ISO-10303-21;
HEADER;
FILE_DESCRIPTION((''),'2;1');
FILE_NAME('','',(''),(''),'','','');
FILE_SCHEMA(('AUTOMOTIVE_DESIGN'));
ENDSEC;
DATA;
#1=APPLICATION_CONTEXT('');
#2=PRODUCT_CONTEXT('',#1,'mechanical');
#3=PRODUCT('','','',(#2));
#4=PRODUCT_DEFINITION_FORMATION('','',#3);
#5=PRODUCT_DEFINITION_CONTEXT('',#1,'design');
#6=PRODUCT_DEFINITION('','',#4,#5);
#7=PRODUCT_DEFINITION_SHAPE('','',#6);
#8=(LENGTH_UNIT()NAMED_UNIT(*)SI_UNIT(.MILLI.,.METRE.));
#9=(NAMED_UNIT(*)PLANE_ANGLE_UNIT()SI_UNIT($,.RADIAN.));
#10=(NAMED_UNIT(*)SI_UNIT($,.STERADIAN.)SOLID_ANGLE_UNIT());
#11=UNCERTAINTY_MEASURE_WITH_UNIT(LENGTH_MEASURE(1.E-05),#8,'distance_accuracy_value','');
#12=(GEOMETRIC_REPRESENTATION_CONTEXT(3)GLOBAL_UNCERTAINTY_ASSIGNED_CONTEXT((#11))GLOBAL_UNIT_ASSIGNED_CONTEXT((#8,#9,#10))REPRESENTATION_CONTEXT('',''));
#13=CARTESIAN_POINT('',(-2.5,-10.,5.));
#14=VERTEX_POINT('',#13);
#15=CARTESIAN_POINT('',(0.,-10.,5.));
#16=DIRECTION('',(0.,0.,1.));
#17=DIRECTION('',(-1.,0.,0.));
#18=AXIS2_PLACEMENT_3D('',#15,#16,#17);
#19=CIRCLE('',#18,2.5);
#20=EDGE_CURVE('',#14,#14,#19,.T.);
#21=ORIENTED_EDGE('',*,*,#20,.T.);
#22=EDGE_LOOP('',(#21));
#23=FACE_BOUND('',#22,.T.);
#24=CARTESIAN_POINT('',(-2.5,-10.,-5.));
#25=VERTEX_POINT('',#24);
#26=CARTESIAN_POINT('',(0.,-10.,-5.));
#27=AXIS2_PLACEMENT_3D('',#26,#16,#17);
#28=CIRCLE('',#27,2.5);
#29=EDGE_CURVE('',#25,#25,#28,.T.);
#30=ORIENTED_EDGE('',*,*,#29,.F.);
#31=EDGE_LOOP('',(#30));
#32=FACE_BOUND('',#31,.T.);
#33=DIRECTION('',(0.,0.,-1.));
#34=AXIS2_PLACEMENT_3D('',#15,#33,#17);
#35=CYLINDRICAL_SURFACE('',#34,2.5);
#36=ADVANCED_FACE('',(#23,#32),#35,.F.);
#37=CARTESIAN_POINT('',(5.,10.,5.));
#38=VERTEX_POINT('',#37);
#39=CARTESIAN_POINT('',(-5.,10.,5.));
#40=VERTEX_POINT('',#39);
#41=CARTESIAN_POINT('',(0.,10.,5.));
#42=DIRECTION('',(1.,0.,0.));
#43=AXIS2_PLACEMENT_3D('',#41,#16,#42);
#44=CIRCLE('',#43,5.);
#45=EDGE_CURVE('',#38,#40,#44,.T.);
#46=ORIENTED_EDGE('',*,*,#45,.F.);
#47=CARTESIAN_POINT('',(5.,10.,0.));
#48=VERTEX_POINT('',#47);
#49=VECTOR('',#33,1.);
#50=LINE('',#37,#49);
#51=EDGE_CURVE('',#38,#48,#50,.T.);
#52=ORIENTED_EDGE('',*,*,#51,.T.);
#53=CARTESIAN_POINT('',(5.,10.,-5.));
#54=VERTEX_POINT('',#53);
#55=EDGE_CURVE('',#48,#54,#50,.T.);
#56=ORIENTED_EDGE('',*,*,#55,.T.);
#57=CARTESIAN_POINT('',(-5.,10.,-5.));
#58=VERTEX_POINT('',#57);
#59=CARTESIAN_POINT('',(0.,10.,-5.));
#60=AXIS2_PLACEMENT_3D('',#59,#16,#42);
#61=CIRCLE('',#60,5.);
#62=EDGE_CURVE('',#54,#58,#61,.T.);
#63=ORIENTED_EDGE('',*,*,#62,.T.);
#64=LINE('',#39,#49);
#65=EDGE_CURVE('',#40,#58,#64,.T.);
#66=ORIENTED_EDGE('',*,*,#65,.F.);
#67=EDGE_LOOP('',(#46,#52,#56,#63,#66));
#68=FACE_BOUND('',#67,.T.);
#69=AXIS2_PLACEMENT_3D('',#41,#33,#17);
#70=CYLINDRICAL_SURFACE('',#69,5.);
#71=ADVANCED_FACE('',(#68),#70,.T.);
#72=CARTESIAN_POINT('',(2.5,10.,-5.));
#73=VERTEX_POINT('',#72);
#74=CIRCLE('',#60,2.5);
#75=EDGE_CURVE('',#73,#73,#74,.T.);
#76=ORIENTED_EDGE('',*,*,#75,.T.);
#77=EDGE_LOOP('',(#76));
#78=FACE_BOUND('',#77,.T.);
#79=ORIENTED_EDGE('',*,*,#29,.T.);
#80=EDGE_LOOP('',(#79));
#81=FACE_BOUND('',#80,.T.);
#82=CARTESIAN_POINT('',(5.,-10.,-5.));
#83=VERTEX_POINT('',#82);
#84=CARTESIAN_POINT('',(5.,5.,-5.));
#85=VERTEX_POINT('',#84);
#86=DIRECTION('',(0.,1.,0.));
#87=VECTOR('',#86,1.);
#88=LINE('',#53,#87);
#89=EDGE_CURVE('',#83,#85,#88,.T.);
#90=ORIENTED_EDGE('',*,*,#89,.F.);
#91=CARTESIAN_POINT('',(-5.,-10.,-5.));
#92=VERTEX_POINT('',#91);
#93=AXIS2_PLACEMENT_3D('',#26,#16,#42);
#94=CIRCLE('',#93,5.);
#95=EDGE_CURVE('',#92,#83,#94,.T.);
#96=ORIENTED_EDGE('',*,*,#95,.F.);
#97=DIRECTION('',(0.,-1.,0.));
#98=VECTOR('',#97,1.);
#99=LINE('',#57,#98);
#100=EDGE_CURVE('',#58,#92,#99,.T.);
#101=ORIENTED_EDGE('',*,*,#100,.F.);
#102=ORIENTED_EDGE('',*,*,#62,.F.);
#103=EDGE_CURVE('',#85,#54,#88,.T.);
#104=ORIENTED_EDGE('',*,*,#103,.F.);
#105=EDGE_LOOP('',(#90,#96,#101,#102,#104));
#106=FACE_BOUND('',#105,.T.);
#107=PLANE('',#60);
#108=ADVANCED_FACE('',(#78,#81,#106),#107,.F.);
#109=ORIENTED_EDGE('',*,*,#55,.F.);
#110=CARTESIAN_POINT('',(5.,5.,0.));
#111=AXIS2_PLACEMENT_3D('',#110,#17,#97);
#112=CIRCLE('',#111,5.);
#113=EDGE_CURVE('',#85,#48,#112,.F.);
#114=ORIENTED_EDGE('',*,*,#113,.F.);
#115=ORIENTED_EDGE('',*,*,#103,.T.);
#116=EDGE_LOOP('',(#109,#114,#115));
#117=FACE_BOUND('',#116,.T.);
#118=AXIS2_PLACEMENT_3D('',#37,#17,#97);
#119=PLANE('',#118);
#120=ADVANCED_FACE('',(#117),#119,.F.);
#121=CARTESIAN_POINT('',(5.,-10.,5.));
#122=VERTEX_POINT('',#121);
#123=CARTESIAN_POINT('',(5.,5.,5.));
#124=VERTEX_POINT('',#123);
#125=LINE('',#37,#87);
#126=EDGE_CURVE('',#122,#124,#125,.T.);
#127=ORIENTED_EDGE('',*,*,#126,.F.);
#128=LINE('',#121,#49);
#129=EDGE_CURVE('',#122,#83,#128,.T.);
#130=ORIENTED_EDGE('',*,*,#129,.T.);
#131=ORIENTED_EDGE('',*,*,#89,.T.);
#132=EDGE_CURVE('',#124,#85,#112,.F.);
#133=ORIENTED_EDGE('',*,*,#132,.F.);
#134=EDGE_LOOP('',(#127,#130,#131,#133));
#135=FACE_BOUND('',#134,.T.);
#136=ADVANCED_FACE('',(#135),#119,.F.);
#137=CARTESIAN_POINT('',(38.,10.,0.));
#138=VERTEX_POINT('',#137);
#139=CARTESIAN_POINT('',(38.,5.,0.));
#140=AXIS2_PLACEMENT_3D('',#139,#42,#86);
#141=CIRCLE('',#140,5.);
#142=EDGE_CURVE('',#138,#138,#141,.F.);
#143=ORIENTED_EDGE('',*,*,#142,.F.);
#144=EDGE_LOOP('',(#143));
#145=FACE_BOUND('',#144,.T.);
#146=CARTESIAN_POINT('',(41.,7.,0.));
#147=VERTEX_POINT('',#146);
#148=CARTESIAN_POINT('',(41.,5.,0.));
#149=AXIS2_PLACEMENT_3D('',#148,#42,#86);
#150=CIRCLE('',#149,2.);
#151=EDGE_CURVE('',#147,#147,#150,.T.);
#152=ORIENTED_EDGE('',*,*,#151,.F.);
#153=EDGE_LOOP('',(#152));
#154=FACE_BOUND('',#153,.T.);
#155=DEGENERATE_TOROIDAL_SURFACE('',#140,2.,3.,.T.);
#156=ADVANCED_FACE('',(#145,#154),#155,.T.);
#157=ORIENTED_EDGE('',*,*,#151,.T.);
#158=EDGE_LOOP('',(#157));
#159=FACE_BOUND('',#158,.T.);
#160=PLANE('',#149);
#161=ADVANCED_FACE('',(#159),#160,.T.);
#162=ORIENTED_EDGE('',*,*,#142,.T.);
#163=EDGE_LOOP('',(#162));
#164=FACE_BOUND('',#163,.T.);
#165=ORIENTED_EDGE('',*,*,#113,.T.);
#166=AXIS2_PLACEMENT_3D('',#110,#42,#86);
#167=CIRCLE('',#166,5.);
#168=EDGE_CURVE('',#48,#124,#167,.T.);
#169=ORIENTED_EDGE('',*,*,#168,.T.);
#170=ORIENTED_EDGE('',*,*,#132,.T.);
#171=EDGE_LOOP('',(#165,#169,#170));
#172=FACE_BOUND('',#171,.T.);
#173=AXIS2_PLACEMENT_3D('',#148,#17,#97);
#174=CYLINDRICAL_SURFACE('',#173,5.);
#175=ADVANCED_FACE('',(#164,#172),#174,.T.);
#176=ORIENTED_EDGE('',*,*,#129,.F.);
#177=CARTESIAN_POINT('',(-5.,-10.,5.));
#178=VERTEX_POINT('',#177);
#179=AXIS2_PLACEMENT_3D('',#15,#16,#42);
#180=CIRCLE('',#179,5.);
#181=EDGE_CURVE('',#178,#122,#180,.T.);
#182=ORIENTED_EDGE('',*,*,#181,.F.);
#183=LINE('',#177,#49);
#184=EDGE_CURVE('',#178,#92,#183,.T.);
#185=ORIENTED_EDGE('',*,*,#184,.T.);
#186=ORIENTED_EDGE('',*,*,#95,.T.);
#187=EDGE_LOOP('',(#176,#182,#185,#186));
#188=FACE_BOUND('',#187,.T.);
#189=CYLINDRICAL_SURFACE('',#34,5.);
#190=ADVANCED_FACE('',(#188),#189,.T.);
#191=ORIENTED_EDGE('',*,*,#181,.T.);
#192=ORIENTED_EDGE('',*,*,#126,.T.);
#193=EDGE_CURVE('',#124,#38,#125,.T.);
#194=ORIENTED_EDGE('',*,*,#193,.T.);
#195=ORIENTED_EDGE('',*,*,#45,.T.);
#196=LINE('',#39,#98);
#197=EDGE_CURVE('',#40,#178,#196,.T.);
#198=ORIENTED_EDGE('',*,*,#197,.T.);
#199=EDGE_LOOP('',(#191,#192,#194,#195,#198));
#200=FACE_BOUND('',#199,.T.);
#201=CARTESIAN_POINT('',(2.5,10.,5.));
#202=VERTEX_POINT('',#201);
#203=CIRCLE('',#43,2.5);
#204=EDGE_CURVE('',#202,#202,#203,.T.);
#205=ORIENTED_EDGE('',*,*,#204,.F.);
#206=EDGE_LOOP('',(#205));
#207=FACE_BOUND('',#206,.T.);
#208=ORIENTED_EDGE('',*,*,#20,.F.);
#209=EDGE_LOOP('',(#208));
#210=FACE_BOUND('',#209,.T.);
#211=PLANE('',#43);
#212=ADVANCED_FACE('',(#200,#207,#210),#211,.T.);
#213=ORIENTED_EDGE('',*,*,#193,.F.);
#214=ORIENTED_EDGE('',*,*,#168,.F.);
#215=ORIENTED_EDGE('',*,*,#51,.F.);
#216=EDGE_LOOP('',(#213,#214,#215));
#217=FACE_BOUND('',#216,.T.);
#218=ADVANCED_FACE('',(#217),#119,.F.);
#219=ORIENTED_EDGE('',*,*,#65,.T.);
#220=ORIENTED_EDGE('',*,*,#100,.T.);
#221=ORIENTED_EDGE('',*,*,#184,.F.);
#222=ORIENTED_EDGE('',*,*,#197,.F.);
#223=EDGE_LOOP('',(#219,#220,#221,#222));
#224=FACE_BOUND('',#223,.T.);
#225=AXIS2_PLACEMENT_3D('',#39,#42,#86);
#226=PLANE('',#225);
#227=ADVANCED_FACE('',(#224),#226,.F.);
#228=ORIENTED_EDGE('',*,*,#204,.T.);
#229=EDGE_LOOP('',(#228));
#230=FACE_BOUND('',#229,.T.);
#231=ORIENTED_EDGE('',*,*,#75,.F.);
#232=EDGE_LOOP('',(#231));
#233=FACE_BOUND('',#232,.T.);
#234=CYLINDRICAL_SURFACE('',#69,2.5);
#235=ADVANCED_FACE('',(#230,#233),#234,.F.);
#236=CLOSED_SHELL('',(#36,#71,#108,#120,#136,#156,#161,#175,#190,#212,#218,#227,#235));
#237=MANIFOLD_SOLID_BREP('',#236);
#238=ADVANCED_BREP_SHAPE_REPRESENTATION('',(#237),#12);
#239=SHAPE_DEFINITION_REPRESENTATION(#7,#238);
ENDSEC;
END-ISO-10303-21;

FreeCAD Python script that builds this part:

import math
import FreeCAD as App
import Part
import Sketcher
from FreeCAD import Vector


def edges_at(feature, points):
    """Names of the edges that pass closest to the given points."""
    edges = feature.Shape.Edges
    near = lambda p: min(range(len(edges)), key=lambda i: edges[i].distToShape(Part.Vertex(*p))[0])
    return sorted({f"Edge{near(p) + 1}" for p in points})

doc = App.newDocument("Part")
params = doc.addObject("Spreadsheet::Sheet", "Params")
for row, (alias, value) in enumerate([
    ("sketch1_diameter", "5 mm"),
    ("sketch1_radius", "5 mm"),
    ("sketch1_height", "20 mm"),
    ("pad1_length", "10 mm"),
    ("sketch2_diameter", "10 mm"),
    ("pad2_length", "36 mm"),
    ("fillet_radius", "3 mm"),
], start=1):
    params.set(f"A{row}", alias)
    params.set(f"B{row}", "=" + value)
    params.setAlias(f"B{row}", alias)

body = doc.addObject("PartDesign::Body", "Body")

sketch1 = body.newObject("Sketcher::SketchObject", "Sketch")
sketch1.AttachmentSupport = (doc.getObject("XY_Plane"), [""])
sketch1.MapMode = "FlatFace"
sketch1.addGeometry([
    Part.LineSegment(Vector(5, -10, 0), Vector(5, 10, 0)),
    Part.ArcOfCircle(Part.Circle(Vector(0, 10, 0), Vector(0, 0, 1), 5), math.radians(0), math.radians(180)),
    Part.LineSegment(Vector(-5, 10, 0), Vector(-5, -10, 0)),
    Part.ArcOfCircle(Part.Circle(Vector(0, -10, 0), Vector(0, 0, 1), 5), math.radians(180), math.radians(360)),
    Part.Circle(Vector(0, -10, 0), Vector(0, 0, 1), 2.5),
    Part.Circle(Vector(0, 10, 0), Vector(0, 0, 1), 2.5),
], False)
sketch1.addConstraint([
    Sketcher.Constraint("Tangent", 0, 2, 1, 1),
    Sketcher.Constraint("Tangent", 1, 2, 2, 1),
    Sketcher.Constraint("Tangent", 2, 2, 3, 1),
    Sketcher.Constraint("Tangent", 3, 2, 0, 1),
    Sketcher.Constraint("Vertical", 0),
    Sketcher.Constraint("Vertical", 2),
    Sketcher.Constraint("Coincident", 4, 3, 3, 3),
    Sketcher.Constraint("Coincident", 5, 3, 1, 3),
    Sketcher.Constraint("Equal", 4, 5),
    Sketcher.Constraint("Symmetric", 1, 3, 3, 3, -1, 1),
    Sketcher.Constraint("Diameter", 4, 5.0),
    Sketcher.Constraint("Radius", 1, 5.0),
    Sketcher.Constraint("DistanceY", 0, 1, 0, 2, 20.0),
])
sketch1.setExpression("Constraints[10]", "Params.sketch1_diameter")
sketch1.setExpression("Constraints[11]", "Params.sketch1_radius")
sketch1.setExpression("Constraints[12]", "Params.sketch1_height")
pad1 = body.newObject("PartDesign::Pad", "Pad")
pad1.Profile = sketch1
pad1.setExpression("Length", "Params.pad1_length")
pad1.Midplane = True

sketch2 = body.newObject("Sketcher::SketchObject", "Sketch001")
sketch2.AttachmentSupport = (doc.getObject("YZ_Plane"), [""])
sketch2.MapMode = "FlatFace"
sketch2.AttachmentOffset = App.Placement(Vector(0, 0, 5), App.Rotation())
sketch2.addGeometry(Part.Circle(Vector(5, 0, 0), Vector(0, 0, 1), 5), False)
sketch2.addConstraint([
    Sketcher.Constraint("PointOnObject", 0, 3, -1),
    Sketcher.Constraint("Diameter", 0, 10.0),
    Sketcher.Constraint("DistanceX", -1, 1, 0, 3, 5.0),
])
sketch2.setExpression("Constraints[1]", "Params.sketch2_diameter")
pad2 = body.newObject("PartDesign::Pad", "Pad001")
pad2.Profile = sketch2
pad2.setExpression("Length", "Params.pad2_length")
doc.recompute()

fillet = body.newObject("PartDesign::Fillet", "Fillet")
fillet.Base = (pad2, edges_at(pad2, [(41, 5, 5)]))
fillet.setExpression("Radius", "Params.fillet_radius")

doc.recompute()
